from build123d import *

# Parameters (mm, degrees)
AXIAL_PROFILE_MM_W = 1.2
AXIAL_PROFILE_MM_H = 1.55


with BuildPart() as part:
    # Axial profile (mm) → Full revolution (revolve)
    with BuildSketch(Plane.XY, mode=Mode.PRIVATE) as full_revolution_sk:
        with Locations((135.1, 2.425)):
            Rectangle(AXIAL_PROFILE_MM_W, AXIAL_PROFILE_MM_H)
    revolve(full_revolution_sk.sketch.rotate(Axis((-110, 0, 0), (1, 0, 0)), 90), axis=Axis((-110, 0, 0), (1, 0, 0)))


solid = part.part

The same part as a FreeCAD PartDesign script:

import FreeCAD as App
import Part
import Sketcher

V = App.Vector
Q = App.Units.Quantity


def add_polygon(sketch, points):
    """Adds a closed chain of lines whose ends are joined by coincident constraints."""
    first, n = sketch.GeometryCount, len(points)
    for a, b in zip(points, points[1:] + points[:1]):
        sketch.addGeometry(Part.LineSegment(App.Vector(*a, 0), App.Vector(*b, 0)), False)
    for i in range(n):
        sketch.addConstraint(Sketcher.Constraint("Coincident", first + i, 2, first + (i + 1) % n, 1))

doc = App.newDocument("Part")
body = doc.addObject("PartDesign::Body", "Body")

sketch1 = body.newObject("Sketcher::SketchObject", "Sketch")
sketch1.AttachmentSupport = (doc.getObject("XY_Plane"), [""])
sketch1.MapMode = "FlatFace"
add_polygon(sketch1, [(134.5, 3.2), (134.5, 1.6), (135.7, 1.6), (135.7, 3.2)])
sketch1.addConstraint([
    Sketcher.Constraint("Vertical", 0),
    Sketcher.Constraint("Horizontal", 1),
    Sketcher.Constraint("Vertical", 2),
    Sketcher.Constraint("Horizontal", 3),
    Sketcher.Constraint("DistanceX", 1, 1, 1, 2, Q("1.2 mm")),
    Sketcher.Constraint("DistanceY", 0, 2, 0, 1, Q("1.55 mm")),
    Sketcher.Constraint("DistanceX", -1, 1, 0, 2, Q("134.5 mm")),
    Sketcher.Constraint("DistanceY", -1, 1, 2, 2, Q("3.2 mm")),
])
revolution = body.newObject("PartDesign::Revolution", "Revolution")
revolution.Profile = sketch1
revolution.ReferenceAxis = (sketch1, ["H_Axis"])
revolution.Angle = 360

doc.recompute()
